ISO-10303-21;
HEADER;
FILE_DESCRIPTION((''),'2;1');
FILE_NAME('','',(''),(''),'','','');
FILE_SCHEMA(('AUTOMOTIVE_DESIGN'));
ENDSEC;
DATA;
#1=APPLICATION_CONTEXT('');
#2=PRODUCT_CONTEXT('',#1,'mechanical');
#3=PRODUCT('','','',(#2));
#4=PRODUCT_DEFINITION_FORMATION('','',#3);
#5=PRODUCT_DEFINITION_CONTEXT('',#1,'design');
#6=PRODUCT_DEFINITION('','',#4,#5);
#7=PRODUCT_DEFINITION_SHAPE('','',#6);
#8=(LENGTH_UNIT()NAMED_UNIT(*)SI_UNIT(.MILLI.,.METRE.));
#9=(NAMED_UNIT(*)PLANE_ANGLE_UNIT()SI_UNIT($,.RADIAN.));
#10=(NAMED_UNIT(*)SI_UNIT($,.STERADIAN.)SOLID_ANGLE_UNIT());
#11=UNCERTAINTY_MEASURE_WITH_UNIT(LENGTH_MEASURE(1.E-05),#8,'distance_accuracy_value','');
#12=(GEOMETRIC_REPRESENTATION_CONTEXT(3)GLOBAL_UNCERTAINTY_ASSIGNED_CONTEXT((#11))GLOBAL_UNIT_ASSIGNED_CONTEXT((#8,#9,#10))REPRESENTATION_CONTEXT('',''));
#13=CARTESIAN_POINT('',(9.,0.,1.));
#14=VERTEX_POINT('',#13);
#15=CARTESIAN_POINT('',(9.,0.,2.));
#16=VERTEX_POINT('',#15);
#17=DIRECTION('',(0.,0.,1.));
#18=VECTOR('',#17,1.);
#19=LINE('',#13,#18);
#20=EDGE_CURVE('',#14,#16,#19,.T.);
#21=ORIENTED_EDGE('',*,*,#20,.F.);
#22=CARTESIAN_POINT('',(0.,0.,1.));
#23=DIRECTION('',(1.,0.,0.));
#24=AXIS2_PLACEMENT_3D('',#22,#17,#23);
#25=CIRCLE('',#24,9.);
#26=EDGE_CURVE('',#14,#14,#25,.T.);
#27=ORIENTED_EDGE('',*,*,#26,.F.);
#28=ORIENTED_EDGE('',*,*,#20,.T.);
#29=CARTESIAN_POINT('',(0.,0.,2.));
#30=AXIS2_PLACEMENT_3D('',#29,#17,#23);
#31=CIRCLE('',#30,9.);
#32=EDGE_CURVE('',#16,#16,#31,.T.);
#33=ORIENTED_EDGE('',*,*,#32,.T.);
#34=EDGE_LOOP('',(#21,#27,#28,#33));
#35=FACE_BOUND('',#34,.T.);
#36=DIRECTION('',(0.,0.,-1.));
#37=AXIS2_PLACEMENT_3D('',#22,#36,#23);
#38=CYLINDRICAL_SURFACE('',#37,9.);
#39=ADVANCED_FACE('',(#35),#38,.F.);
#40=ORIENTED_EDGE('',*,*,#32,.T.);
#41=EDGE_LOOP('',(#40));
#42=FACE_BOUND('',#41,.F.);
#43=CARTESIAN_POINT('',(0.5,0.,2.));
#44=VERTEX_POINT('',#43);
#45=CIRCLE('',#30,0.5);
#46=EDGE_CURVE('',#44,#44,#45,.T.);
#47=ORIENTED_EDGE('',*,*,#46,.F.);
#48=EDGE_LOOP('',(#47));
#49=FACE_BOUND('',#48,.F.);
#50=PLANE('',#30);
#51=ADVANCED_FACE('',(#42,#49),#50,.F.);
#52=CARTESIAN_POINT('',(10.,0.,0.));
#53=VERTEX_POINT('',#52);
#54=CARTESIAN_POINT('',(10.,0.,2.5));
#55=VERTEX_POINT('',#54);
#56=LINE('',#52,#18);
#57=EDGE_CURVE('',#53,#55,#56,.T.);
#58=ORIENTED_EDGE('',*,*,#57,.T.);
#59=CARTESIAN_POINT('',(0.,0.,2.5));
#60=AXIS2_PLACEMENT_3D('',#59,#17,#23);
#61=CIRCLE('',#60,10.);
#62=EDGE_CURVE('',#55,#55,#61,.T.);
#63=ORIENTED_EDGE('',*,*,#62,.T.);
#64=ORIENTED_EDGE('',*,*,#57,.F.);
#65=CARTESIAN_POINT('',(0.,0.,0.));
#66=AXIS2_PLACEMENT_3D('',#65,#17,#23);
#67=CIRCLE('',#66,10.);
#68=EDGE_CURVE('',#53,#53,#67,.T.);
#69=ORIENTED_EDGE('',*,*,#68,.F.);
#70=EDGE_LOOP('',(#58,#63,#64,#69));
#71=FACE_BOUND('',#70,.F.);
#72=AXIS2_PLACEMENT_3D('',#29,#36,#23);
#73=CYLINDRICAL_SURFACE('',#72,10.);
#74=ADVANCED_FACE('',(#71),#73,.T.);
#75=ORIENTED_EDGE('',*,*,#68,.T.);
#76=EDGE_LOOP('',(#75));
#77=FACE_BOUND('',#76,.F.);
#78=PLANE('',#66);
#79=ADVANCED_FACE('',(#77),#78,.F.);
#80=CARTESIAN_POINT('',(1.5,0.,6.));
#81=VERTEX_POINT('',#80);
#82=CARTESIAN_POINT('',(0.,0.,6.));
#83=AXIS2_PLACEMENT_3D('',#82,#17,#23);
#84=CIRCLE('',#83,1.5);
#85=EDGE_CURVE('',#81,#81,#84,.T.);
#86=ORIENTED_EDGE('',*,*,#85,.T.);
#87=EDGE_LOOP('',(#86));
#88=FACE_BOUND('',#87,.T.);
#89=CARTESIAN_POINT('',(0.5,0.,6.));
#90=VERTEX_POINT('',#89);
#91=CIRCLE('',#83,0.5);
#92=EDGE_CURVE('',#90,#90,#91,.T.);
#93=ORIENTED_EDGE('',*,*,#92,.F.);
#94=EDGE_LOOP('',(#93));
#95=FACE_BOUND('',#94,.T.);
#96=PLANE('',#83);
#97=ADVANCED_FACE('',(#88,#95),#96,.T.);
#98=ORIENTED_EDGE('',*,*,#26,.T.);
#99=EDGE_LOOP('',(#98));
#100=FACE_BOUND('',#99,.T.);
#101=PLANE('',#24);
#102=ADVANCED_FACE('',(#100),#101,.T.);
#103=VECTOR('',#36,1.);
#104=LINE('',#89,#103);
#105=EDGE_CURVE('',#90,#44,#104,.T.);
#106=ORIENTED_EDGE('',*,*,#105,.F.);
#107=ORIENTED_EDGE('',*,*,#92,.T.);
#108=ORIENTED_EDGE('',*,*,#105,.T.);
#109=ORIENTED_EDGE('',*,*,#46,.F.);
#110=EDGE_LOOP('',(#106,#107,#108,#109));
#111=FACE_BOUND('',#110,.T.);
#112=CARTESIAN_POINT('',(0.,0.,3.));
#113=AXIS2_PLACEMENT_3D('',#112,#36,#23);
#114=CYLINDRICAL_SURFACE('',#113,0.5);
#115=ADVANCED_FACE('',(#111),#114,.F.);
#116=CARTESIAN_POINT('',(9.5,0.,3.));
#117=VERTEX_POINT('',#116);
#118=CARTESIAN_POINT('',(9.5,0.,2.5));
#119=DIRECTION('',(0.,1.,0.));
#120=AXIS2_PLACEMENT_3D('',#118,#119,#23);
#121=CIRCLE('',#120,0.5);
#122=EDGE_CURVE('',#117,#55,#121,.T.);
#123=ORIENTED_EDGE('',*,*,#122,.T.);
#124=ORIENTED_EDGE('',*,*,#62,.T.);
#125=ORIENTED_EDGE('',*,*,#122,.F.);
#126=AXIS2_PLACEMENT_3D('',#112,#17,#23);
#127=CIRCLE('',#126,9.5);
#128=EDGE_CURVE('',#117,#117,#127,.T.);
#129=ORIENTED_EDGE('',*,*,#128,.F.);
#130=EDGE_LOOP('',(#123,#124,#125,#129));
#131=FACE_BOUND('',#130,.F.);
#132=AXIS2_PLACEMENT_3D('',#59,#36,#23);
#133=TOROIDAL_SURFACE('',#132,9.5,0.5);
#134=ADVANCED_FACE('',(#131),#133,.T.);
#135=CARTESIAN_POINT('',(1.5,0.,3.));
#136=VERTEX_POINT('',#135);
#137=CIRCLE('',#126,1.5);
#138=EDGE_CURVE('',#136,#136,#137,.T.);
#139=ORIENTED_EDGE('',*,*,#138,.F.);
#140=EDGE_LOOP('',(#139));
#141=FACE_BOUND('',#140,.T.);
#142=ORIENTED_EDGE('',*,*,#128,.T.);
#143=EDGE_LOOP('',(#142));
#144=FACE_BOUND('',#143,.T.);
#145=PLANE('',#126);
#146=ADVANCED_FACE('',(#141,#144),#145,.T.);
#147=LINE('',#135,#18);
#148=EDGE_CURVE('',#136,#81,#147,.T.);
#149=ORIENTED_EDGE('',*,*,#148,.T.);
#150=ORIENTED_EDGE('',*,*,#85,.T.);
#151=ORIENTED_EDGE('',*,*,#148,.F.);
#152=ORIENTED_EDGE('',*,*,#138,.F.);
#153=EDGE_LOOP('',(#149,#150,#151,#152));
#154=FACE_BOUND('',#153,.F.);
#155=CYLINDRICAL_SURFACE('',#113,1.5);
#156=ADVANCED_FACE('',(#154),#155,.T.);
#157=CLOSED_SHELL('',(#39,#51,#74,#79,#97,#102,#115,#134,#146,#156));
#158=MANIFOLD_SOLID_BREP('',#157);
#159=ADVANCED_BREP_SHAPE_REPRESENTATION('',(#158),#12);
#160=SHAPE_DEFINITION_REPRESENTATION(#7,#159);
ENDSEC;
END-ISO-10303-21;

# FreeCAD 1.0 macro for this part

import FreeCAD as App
import Part
import Sketcher
Q = App.Units.Quantity


def edges_at(feature, points):
    """Names of the edges that pass closest to the given points."""
    edges = feature.Shape.Edges
    near = lambda p: min(range(len(edges)), key=lambda i: edges[i].distToShape(Part.Vertex(*p))[0])
    return sorted({f"Edge{near(p) + 1}" for p in points})

doc = App.newDocument("Part")
body = doc.addObject("PartDesign::Body", "Body")

# Sketch on XY plane
sketch1 = doc.addObject("Sketcher::SketchObject", "Sketch")
body.addObject(sketch1)
sketch1.AttachmentSupport = (doc.XY_Plane, [""])
sketch1.MapMode = "FlatFace"
sketch1.addGeometry(Part.Circle(App.Vector(0, 0, 0), App.Vector(0, 0, 1), 10), False)
sketch1.addConstraint(Sketcher.Constraint("Coincident", 0, 3, -1, 1))
sketch1.addConstraint(Sketcher.Constraint("Diameter", 0, Q("20 mm")))
pad1 = doc.addObject("PartDesign::Pad", "Pad")
body.addObject(pad1)
pad1.Profile = sketch1
pad1.Length = 1

# Sketch on XY plane
sketch2 = doc.addObject("Sketcher::SketchObject", "Sketch001")
body.addObject(sketch2)
sketch2.AttachmentSupport = (doc.XY_Plane, [""])
sketch2.MapMode = "FlatFace"
sketch2.AttachmentOffset = App.Placement(App.Vector(0, 0, 1), App.Rotation())
sketch2.addGeometry(Part.Circle(App.Vector(0, 0, 0), App.Vector(0, 0, 1), 10), False)
sketch2.addGeometry(Part.Circle(App.Vector(0, 0, 0), App.Vector(0, 0, 1), 9), False)
sketch2.addConstraint(Sketcher.Constraint("Coincident", 0, 3, -1, 1))
sketch2.addConstraint(Sketcher.Constraint("Coincident", 1, 3, -1, 1))
sketch2.addConstraint(Sketcher.Constraint("Diameter", 0, Q("20 mm")))
sketch2.addConstraint(Sketcher.Constraint("Diameter", 1, Q("18 mm")))
pad2 = doc.addObject("PartDesign::Pad", "Pad001")
body.addObject(pad2)
pad2.Profile = sketch2
pad2.Length = 1

# Sketch on XY plane
sketch3 = doc.addObject("Sketcher::SketchObject", "Sketch002")
body.addObject(sketch3)
sketch3.AttachmentSupport = (doc.XY_Plane, [""])
sketch3.MapMode = "FlatFace"
sketch3.AttachmentOffset = App.Placement(App.Vector(0, 0, 2), App.Rotation())
sketch3.addGeometry(Part.Circle(App.Vector(0, 0, 0), App.Vector(0, 0, 1), 10), False)
sketch3.addGeometry(Part.Circle(App.Vector(0, 0, 0), App.Vector(0, 0, 1), 0.5), False)
sketch3.addConstraint(Sketcher.Constraint("Coincident", 0, 3, -1, 1))
sketch3.addConstraint(Sketcher.Constraint("Coincident", 1, 3, -1, 1))
sketch3.addConstraint(Sketcher.Constraint("Diameter", 0, Q("20 mm")))
sketch3.addConstraint(Sketcher.Constraint("Diameter", 1, Q("1 mm")))
pad3 = doc.addObject("PartDesign::Pad", "Pad002")
body.addObject(pad3)
pad3.Profile = sketch3
pad3.Length = 1

# Sketch on XY plane
sketch4 = doc.addObject("Sketcher::SketchObject", "Sketch003")
body.addObject(sketch4)
sketch4.AttachmentSupport = (doc.XY_Plane, [""])
sketch4.MapMode = "FlatFace"
sketch4.AttachmentOffset = App.Placement(App.Vector(0, 0, 3), App.Rotation())
sketch4.addGeometry(Part.Circle(App.Vector(0, 0, 0), App.Vector(0, 0, 1), 1.5), False)
sketch4.addGeometry(Part.Circle(App.Vector(0, 0, 0), App.Vector(0, 0, 1), 0.5), False)
sketch4.addConstraint(Sketcher.Constraint("Coincident", 0, 3, -1, 1))
sketch4.addConstraint(Sketcher.Constraint("Coincident", 1, 3, -1, 1))
sketch4.addConstraint(Sketcher.Constraint("Diameter", 0, Q("3 mm")))
sketch4.addConstraint(Sketcher.Constraint("Diameter", 1, Q("1 mm")))
pad4 = doc.addObject("PartDesign::Pad", "Pad003")
body.addObject(pad4)
pad4.Profile = sketch4
pad4.Length = 3
doc.recompute()

fillet = doc.addObject("PartDesign::Fillet", "Fillet")
body.addObject(fillet)
fillet.Base = (pad4, edges_at(pad4, [(-10, 0, 3)]))
fillet.Radius = 0.5

doc.recompute()
